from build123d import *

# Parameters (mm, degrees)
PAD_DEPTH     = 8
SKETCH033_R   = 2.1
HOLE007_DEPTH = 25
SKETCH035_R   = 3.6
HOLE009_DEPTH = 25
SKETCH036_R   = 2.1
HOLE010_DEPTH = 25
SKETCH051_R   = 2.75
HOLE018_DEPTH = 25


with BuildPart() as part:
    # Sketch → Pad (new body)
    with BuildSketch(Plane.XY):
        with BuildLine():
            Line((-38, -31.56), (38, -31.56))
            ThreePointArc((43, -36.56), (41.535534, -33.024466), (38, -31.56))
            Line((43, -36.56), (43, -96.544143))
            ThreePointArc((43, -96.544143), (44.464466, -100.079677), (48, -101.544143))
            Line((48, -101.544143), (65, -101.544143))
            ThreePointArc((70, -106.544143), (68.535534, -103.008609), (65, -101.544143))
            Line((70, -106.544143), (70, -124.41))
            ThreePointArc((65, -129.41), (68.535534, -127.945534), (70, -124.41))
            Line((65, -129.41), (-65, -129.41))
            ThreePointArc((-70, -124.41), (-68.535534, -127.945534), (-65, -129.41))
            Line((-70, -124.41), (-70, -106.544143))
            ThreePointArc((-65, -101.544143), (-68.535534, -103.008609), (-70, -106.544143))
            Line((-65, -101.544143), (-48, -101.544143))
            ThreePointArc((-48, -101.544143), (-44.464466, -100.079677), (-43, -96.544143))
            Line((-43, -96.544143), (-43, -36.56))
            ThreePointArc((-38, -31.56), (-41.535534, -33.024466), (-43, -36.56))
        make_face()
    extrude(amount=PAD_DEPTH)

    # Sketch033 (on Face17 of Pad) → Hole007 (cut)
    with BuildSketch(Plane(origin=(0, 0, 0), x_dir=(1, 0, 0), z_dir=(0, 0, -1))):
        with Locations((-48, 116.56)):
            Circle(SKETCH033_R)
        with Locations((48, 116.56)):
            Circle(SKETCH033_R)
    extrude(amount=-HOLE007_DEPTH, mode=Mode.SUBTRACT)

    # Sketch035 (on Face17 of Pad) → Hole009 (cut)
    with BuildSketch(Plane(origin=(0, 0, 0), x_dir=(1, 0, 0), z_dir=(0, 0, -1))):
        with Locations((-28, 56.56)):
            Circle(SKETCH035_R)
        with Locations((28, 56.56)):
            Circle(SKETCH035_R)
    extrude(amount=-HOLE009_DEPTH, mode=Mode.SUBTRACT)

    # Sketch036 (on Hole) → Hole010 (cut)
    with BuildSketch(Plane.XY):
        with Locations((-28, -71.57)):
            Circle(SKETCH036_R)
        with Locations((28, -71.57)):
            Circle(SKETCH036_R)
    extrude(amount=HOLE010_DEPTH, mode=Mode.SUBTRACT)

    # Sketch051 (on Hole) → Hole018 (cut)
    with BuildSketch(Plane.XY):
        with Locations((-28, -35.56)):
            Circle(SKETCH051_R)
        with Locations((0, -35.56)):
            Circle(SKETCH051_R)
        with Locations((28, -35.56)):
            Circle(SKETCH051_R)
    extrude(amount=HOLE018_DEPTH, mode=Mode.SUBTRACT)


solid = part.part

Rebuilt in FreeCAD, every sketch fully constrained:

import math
import FreeCAD as App
import Part
import Sketcher

V = App.Vector

doc = App.newDocument("Part")
params = doc.addObject("Spreadsheet::Sheet", "Params")
for row, (alias, value) in enumerate([
    ("sketch1_radius", "5 mm"),
    ("sketch1_width", "76 mm"),
    ("sketch1_width2", "17 mm"),
    ("pad1_length", "8 mm"),
    ("sketch2_diameter", "4.2 mm"),
    ("pocket1_length", "25 mm"),
    ("sketch3_diameter", "7.2 mm"),
    ("pocket2_length", "25 mm"),
    ("sketch4_diameter", "4.2 mm"),
    ("pocket3_length", "25 mm"),
    ("sketch5_diameter", "5.5 mm"),
    ("pocket4_length", "25 mm"),
], start=1):
    params.set(f"A{row}", alias)
    params.set(f"B{row}", "=" + value)
    params.setAlias(f"B{row}", alias)

body = doc.addObject("PartDesign::Body", "Body")

sketch1 = body.newObject("Sketcher::SketchObject", "Sketch")
sketch1.AttachmentSupport = (doc.getObject("XY_Plane"), [""])
sketch1.MapMode = "FlatFace"
sketch1.addGeometry([
    Part.LineSegment(V(38, -31.6, 0), V(-38, -31.6, 0)),
    Part.ArcOfCircle(Part.Circle(V(-38, -36.6, 0), V(0, 0, 1), 5), math.radians(90), math.radians(180)),
    Part.LineSegment(V(-43, -36.6, 0), V(-43, -96.5, 0)),
    Part.ArcOfCircle(Part.Circle(V(-48, -96.5, 0), V(0, 0, 1), 5), math.radians(-90), math.radians(0)),
    Part.LineSegment(V(-48, -101.5, 0), V(-65, -101.5, 0)),
    Part.ArcOfCircle(Part.Circle(V(-65, -106.5, 0), V(0, 0, 1), 5), math.radians(90), math.radians(180)),
    Part.LineSegment(V(-70, -106.5, 0), V(-70, -124.4, 0)),
    Part.ArcOfCircle(Part.Circle(V(-65, -124.4, 0), V(0, 0, 1), 5), math.radians(180), math.radians(270)),
    Part.LineSegment(V(-65, -129.4, 0), V(65, -129.4, 0)),
    Part.ArcOfCircle(Part.Circle(V(65, -124.4, 0), V(0, 0, 1), 5), math.radians(-90), math.radians(0)),
    Part.LineSegment(V(70, -124.4, 0), V(70, -106.5, 0)),
    Part.ArcOfCircle(Part.Circle(V(65, -106.5, 0), V(0, 0, 1), 5), math.radians(0), math.radians(90)),
    Part.LineSegment(V(65, -101.5, 0), V(48, -101.5, 0)),
    Part.ArcOfCircle(Part.Circle(V(48, -96.5, 0), V(0, 0, 1), 5), math.radians(180), math.radians(270)),
    Part.LineSegment(V(43, -96.5, 0), V(43, -36.6, 0)),
    Part.ArcOfCircle(Part.Circle(V(38, -36.6, 0), V(0, 0, 1), 5), math.radians(0), math.radians(90)),
], False)
sketch1.addConstraint([
    Sketcher.Constraint("Tangent", 0, 2, 1, 1),
    Sketcher.Constraint("Tangent", 1, 2, 2, 1),
    Sketcher.Constraint("Tangent", 2, 2, 3, 2),
    Sketcher.Constraint("Tangent", 3, 1, 4, 1),
    Sketcher.Constraint("Tangent", 4, 2, 5, 1),
    Sketcher.Constraint("Tangent", 5, 2, 6, 1),
    Sketcher.Constraint("Tangent", 6, 2, 7, 1),
    Sketcher.Constraint("Tangent", 7, 2, 8, 1),
    Sketcher.Constraint("Tangent", 8, 2, 9, 1),
    Sketcher.Constraint("Tangent", 9, 2, 10, 1),
    Sketcher.Constraint("Tangent", 10, 2, 11, 1),
    Sketcher.Constraint("Tangent", 11, 2, 12, 1),
    Sketcher.Constraint("Tangent", 12, 2, 13, 2),
    Sketcher.Constraint("Tangent", 13, 1, 14, 1),
    Sketcher.Constraint("Tangent", 14, 2, 15, 1),
    Sketcher.Constraint("Tangent", 15, 2, 0, 1),
    Sketcher.Constraint("Horizontal", 0),
    Sketcher.Constraint("Vertical", 2),
    Sketcher.Constraint("Horizontal", 4),
    Sketcher.Constraint("Vertical", 6),
    Sketcher.Constraint("Horizontal", 8),
    Sketcher.Constraint("Vertical", 10),
    Sketcher.Constraint("Horizontal", 12),
    Sketcher.Constraint("Vertical", 14),
    Sketcher.Constraint("Equal", 1, 3),
    Sketcher.Constraint("Equal", 3, 5),
    Sketcher.Constraint("Equal", 5, 7),
    Sketcher.Constraint("Equal", 7, 9),
    Sketcher.Constraint("Equal", 9, 11),
    Sketcher.Constraint("Equal", 11, 13),
    Sketcher.Constraint("Equal", 13, 15),
    Sketcher.Constraint("Symmetric", 5, 3, 11, 3, -2),
    Sketcher.Constraint("Equal", 4, 12),
    Sketcher.Constraint("Radius", 1, 5.0),
    Sketcher.Constraint("DistanceX", 0, 2, 0, 1, 76.0),
    Sketcher.Constraint("DistanceX", 4, 2, 4, 1, 17.0),
    Sketcher.Constraint("DistanceY", 1, 3, -1, 1, 36.56),
    Sketcher.Constraint("DistanceY", 7, 3, -1, 1, 124.41),
    Sketcher.Constraint("DistanceY", 2, 2, 2, 1, 59.984143),
])
sketch1.setExpression("Constraints[33]", "Params.sketch1_radius")
sketch1.setExpression("Constraints[34]", "Params.sketch1_width")
sketch1.setExpression("Constraints[35]", "Params.sketch1_width2")
pad1 = body.newObject("PartDesign::Pad", "Pad")
pad1.Profile = sketch1
pad1.setExpression("Length", "Params.pad1_length")

sketch2 = body.newObject("Sketcher::SketchObject", "Sketch001")
sketch2.AttachmentSupport = (doc.getObject("XY_Plane"), [""])
sketch2.MapMode = "FlatFace"
sketch2.addGeometry([
    Part.Circle(V(-48, -116.6, 0), V(0, 0, 1), 2.1),
    Part.Circle(V(48, -116.6, 0), V(0, 0, 1), 2.1),
], False)
sketch2.addConstraint([
    Sketcher.Constraint("Equal", 0, 1),
    Sketcher.Constraint("Symmetric", 0, 3, 1, 3, -2),
    Sketcher.Constraint("Diameter", 0, 4.2),
    Sketcher.Constraint("DistanceX", 0, 3, -1, 1, 48.0),
    Sketcher.Constraint("DistanceY", 0, 3, -1, 1, 116.56),
])
sketch2.setExpression("Constraints[2]", "Params.sketch2_diameter")
pocket1 = body.newObject("PartDesign::Pocket", "Pocket")
pocket1.Profile = sketch2
pocket1.setExpression("Length", "Params.pocket1_length")
pocket1.Reversed = True

sketch3 = body.newObject("Sketcher::SketchObject", "Sketch002")
sketch3.AttachmentSupport = (doc.getObject("XY_Plane"), [""])
sketch3.MapMode = "FlatFace"
sketch3.addGeometry([
    Part.Circle(V(-28, -56.6, 0), V(0, 0, 1), 3.6),
    Part.Circle(V(28, -56.6, 0), V(0, 0, 1), 3.6),
], False)
sketch3.addConstraint([
    Sketcher.Constraint("Equal", 0, 1),
    Sketcher.Constraint("Symmetric", 0, 3, 1, 3, -2),
    Sketcher.Constraint("Diameter", 0, 7.2),
    Sketcher.Constraint("DistanceX", 0, 3, -1, 1, 28.0),
    Sketcher.Constraint("DistanceY", 0, 3, -1, 1, 56.56),
])
sketch3.setExpression("Constraints[2]", "Params.sketch3_diameter")
pocket2 = body.newObject("PartDesign::Pocket", "Pocket001")
pocket2.Profile = sketch3
pocket2.setExpression("Length", "Params.pocket2_length")
pocket2.Reversed = True

sketch4 = body.newObject("Sketcher::SketchObject", "Sketch003")
sketch4.AttachmentSupport = (doc.getObject("XY_Plane"), [""])
sketch4.MapMode = "FlatFace"
sketch4.addGeometry([
    Part.Circle(V(-28, -71.6, 0), V(0, 0, 1), 2.1),
    Part.Circle(V(28, -71.6, 0), V(0, 0, 1), 2.1),
], False)
sketch4.addConstraint([
    Sketcher.Constraint("Equal", 0, 1),
    Sketcher.Constraint("Symmetric", 0, 3, 1, 3, -2),
    Sketcher.Constraint("Diameter", 0, 4.2),
    Sketcher.Constraint("DistanceX", 0, 3, -1, 1, 28.0),
    Sketcher.Constraint("DistanceY", 0, 3, -1, 1, 71.57),
])
sketch4.setExpression("Constraints[2]", "Params.sketch4_diameter")
pocket3 = body.newObject("PartDesign::Pocket", "Pocket002")
pocket3.Profile = sketch4
pocket3.setExpression("Length", "Params.pocket3_length")
pocket3.Reversed = True

sketch5 = body.newObject("Sketcher::SketchObject", "Sketch004")
sketch5.AttachmentSupport = (doc.getObject("XY_Plane"), [""])
sketch5.MapMode = "FlatFace"
sketch5.addGeometry([
    Part.Circle(V(-28, -35.6, 0), V(0, 0, 1), 2.8),
    Part.Circle(V(0, -35.6, 0), V(0, 0, 1), 2.8),
    Part.Circle(V(28, -35.6, 0), V(0, 0, 1), 2.8),
], False)
sketch5.addConstraint([
    Sketcher.Constraint("Equal", 0, 1),
    Sketcher.Constraint("Equal", 1, 2),
    Sketcher.Constraint("Symmetric", 0, 3, 2, 3, -2),
    Sketcher.Constraint("PointOnObject", 1, 3, -2),
    Sketcher.Constraint("Horizontal", 0, 3, 1, 3),
    Sketcher.Constraint("Diameter", 0, 5.5),
    Sketcher.Constraint("DistanceX", 0, 3, -1, 1, 28.0),
    Sketcher.Constraint("DistanceY", 0, 3, -1, 1, 35.56),
])
sketch5.setExpression("Constraints[5]", "Params.sketch5_diameter")
pocket4 = body.newObject("PartDesign::Pocket", "Pocket003")
pocket4.Profile = sketch5
pocket4.setExpression("Length", "Params.pocket4_length")
pocket4.Reversed = True

doc.recompute()
